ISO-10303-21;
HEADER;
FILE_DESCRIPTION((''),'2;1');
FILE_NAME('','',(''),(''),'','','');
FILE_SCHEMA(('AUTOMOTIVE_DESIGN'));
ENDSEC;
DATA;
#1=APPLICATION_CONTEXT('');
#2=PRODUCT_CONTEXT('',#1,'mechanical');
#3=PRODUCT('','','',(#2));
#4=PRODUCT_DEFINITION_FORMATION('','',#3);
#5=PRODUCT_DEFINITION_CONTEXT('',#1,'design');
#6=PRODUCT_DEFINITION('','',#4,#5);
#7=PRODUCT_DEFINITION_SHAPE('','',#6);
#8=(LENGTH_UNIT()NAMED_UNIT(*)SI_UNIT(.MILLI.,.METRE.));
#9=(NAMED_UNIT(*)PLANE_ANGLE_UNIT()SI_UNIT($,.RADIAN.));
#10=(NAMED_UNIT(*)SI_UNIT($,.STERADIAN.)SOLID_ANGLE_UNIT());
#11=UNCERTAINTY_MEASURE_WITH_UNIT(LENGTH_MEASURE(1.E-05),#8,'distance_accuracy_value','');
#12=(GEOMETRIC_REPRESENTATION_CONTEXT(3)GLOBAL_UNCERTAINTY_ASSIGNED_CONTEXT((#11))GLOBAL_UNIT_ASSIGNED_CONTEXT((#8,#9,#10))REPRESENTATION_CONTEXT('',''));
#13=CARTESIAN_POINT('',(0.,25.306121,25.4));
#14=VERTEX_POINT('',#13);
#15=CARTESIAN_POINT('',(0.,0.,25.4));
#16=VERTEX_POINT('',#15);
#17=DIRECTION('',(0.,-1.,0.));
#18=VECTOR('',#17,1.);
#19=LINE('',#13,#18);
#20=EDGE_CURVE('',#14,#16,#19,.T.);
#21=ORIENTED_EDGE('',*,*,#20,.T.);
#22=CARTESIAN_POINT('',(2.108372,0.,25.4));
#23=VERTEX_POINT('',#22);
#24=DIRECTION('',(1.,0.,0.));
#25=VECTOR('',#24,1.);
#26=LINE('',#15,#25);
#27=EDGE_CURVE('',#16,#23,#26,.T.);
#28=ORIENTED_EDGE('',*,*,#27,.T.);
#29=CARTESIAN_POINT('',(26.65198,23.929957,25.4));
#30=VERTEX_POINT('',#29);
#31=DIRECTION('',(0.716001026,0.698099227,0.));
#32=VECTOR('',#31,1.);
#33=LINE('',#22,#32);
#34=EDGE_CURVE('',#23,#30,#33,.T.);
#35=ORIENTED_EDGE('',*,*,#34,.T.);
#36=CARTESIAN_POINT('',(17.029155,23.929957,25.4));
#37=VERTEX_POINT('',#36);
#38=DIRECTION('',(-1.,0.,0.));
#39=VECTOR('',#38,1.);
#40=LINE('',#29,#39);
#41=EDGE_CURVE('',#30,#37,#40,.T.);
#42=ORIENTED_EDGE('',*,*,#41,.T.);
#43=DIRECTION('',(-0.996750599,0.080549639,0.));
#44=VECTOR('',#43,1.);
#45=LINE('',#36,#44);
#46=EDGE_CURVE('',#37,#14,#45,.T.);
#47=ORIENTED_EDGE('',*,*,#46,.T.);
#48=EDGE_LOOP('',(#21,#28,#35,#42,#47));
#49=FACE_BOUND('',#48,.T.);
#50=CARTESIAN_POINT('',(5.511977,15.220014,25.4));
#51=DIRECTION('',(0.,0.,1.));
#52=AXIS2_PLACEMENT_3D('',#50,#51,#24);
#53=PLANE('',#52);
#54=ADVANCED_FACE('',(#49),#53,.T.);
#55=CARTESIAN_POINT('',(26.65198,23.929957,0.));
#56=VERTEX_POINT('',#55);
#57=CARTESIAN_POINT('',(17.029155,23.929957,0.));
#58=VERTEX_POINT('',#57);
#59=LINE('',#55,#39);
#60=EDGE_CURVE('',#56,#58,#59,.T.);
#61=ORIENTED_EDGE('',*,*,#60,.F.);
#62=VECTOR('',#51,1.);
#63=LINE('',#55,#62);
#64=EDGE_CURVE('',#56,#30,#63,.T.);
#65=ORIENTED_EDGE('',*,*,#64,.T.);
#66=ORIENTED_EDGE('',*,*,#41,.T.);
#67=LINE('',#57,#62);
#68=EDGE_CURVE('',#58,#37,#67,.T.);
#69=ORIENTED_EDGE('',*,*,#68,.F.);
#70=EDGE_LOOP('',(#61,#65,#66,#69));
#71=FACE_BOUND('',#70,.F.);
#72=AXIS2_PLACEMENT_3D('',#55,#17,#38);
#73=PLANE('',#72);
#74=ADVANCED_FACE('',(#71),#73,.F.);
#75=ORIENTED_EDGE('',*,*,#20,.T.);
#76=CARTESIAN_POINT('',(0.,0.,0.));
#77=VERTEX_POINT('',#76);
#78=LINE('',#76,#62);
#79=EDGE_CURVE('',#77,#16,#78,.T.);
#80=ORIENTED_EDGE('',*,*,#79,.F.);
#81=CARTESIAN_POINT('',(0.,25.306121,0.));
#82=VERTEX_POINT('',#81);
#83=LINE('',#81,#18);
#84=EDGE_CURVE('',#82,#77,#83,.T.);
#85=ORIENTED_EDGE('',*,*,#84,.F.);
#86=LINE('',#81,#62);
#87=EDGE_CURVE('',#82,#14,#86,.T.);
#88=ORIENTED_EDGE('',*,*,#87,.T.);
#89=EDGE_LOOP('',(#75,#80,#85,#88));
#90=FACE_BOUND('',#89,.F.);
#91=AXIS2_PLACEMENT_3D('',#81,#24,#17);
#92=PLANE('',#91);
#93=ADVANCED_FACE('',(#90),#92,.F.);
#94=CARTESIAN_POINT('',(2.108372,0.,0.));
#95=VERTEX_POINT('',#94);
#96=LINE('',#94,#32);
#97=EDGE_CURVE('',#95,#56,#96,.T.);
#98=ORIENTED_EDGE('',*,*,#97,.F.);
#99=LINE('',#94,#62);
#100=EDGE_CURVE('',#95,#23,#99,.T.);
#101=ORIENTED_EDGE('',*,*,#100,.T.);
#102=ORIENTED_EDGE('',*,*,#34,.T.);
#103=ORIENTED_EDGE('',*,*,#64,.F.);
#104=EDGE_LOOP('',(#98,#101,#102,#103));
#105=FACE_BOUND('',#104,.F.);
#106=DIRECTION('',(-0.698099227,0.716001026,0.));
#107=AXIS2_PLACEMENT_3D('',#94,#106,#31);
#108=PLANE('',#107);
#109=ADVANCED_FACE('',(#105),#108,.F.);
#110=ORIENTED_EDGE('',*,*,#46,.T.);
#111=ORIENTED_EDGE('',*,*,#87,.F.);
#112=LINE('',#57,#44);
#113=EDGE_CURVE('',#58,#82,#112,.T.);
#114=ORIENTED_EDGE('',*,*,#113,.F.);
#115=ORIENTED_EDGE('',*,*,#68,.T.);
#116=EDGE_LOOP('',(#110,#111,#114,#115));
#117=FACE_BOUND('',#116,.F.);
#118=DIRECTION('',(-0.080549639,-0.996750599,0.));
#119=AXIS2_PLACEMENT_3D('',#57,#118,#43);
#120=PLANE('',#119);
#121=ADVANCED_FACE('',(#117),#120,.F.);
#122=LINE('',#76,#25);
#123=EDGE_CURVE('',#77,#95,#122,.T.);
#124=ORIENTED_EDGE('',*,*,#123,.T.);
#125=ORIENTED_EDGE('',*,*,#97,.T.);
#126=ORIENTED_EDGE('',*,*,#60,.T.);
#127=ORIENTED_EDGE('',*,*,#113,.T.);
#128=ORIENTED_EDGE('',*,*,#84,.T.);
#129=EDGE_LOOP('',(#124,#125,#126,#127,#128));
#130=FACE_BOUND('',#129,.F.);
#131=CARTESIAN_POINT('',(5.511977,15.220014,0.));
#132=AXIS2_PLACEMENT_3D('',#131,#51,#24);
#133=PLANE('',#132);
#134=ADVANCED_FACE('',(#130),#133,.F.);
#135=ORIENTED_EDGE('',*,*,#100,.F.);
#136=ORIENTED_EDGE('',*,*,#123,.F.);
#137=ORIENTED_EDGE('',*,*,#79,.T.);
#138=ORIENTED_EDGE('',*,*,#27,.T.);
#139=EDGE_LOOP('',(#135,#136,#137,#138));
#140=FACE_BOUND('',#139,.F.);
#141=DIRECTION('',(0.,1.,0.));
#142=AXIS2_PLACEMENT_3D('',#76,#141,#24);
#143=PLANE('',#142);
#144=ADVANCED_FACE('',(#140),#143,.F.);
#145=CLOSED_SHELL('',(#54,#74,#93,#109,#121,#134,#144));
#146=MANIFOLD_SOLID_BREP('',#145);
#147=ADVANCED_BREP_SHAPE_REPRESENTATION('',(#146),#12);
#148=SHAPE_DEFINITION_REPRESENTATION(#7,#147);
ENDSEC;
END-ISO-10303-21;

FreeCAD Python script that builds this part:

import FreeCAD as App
import Part
import Sketcher

V = App.Vector
Q = App.Units.Quantity


def add_polygon(sketch, points):
    """Adds a closed chain of lines whose ends are joined by coincident constraints."""
    first, n = sketch.GeometryCount, len(points)
    for a, b in zip(points, points[1:] + points[:1]):
        sketch.addGeometry(Part.LineSegment(App.Vector(*a, 0), App.Vector(*b, 0)), False)
    for i in range(n):
        sketch.addConstraint(Sketcher.Constraint("Coincident", first + i, 2, first + (i + 1) % n, 1))

doc = App.newDocument("Part")
body = doc.addObject("PartDesign::Body", "Body")

sketch1 = doc.addObject("Sketcher::SketchObject", "Sketch")
body.addObject(sketch1)
sketch1.AttachmentSupport = (doc.XY_Plane, [""])
sketch1.MapMode = "FlatFace"
add_polygon(sketch1, [(0, 25.3), (0, 0), (2.1, 0), (26.7, 23.9), (17, 23.9)])
sketch1.addConstraint(Sketcher.Constraint("Vertical", 0))
sketch1.addConstraint(Sketcher.Constraint("Horizontal", 1))
sketch1.addConstraint(Sketcher.Constraint("Horizontal", 3))
sketch1.addConstraint(Sketcher.Constraint("Coincident", 0, 2, -1, 1))
sketch1.addConstraint(Sketcher.Constraint("DistanceY", 0, 2, 0, 1, Q("25.306121 mm")))
sketch1.addConstraint(Sketcher.Constraint("Distance", 4, Q("17.08467 mm")))
sketch1.addConstraint(Sketcher.Constraint("DistanceX", 1, 1, 1, 2, Q("2.108372 mm")))
sketch1.addConstraint(Sketcher.Constraint("DistanceX", 3, 2, 3, 1, Q("9.622825 mm")))
sketch1.addConstraint(Sketcher.Constraint("DistanceX", -1, 1, 2, 2, Q("26.65198 mm")))
pad1 = doc.addObject("PartDesign::Pad", "Pad")
body.addObject(pad1)
pad1.Profile = sketch1
pad1.Length = Q("1 in")

doc.recompute()
